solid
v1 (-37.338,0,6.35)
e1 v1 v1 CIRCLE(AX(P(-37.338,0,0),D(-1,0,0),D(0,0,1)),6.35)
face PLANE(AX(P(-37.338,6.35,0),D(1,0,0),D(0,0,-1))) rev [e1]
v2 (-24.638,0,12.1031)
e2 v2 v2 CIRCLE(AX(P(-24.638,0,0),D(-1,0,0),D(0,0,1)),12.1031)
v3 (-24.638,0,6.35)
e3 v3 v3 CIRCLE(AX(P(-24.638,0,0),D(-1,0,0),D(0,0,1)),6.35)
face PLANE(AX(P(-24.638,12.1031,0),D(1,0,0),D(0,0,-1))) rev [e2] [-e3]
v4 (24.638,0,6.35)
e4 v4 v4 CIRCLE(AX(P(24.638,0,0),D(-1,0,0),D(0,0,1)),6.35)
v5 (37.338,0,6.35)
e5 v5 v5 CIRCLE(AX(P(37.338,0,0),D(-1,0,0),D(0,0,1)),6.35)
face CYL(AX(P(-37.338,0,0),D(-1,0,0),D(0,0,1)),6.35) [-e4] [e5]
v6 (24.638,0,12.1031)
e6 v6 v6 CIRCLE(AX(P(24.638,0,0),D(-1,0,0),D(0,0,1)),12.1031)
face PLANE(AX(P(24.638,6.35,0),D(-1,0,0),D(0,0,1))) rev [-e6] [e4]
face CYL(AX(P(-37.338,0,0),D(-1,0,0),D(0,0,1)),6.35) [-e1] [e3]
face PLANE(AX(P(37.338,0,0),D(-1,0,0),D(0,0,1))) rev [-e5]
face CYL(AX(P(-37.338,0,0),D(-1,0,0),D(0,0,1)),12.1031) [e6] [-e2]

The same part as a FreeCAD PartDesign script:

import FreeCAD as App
import Part
import Sketcher
Q = App.Units.Quantity


def add_polygon(sketch, points):
    """Adds a closed chain of lines whose ends are joined by coincident constraints."""
    first, n = sketch.GeometryCount, len(points)
    for a, b in zip(points, points[1:] + points[:1]):
        sketch.addGeometry(Part.LineSegment(App.Vector(*a, 0), App.Vector(*b, 0)), False)
    for i in range(n):
        sketch.addConstraint(Sketcher.Constraint("Coincident", first + i, 2, first + (i + 1) % n, 1))

doc = App.newDocument("Part")
body = doc.addObject("PartDesign::Body", "Body")

# Sketch on XY plane
sketch1 = body.newObject("Sketcher::SketchObject", "Sketch")
sketch1.AttachmentSupport = (doc.getObject("XY_Plane"), [""])
sketch1.MapMode = "FlatFace"
add_polygon(sketch1, [(-37, 0), (37, 0), (37, 6), (25, 6), (25, 12), (-25, 12), (-25, 6), (-37, 6)])  # lines 0-7
sketch1.addConstraint([
    Sketcher.Constraint("Horizontal", 0),
    Sketcher.Constraint("Vertical", 1),
    Sketcher.Constraint("Horizontal", 2),
    Sketcher.Constraint("Vertical", 3),
    Sketcher.Constraint("Horizontal", 4),
    Sketcher.Constraint("Vertical", 5),
    Sketcher.Constraint("Horizontal", 6),
    Sketcher.Constraint("Vertical", 7),
    Sketcher.Constraint("Symmetric", 0, 2, 7, 2, -1, 1),
    Sketcher.Constraint("Symmetric", 2, 2, 5, 2, -2),
    Sketcher.Constraint("DistanceX", 2, 2, 2, 1, Q("0.5 in")),
    Sketcher.Constraint("DistanceX", 0, 1, 0, 2, Q("2.94 in")),
    Sketcher.Constraint("DistanceY", 1, 1, 1, 2, Q("0.25 in")),
    Sketcher.Constraint("DistanceY", 3, 1, 3, 2, Q("0.2265 in")),
])
revolution = body.newObject("PartDesign::Revolution", "Revolution")
revolution.Profile = sketch1
revolution.ReferenceAxis = (sketch1, ["H_Axis"])
revolution.Angle = 360

doc.recompute()
